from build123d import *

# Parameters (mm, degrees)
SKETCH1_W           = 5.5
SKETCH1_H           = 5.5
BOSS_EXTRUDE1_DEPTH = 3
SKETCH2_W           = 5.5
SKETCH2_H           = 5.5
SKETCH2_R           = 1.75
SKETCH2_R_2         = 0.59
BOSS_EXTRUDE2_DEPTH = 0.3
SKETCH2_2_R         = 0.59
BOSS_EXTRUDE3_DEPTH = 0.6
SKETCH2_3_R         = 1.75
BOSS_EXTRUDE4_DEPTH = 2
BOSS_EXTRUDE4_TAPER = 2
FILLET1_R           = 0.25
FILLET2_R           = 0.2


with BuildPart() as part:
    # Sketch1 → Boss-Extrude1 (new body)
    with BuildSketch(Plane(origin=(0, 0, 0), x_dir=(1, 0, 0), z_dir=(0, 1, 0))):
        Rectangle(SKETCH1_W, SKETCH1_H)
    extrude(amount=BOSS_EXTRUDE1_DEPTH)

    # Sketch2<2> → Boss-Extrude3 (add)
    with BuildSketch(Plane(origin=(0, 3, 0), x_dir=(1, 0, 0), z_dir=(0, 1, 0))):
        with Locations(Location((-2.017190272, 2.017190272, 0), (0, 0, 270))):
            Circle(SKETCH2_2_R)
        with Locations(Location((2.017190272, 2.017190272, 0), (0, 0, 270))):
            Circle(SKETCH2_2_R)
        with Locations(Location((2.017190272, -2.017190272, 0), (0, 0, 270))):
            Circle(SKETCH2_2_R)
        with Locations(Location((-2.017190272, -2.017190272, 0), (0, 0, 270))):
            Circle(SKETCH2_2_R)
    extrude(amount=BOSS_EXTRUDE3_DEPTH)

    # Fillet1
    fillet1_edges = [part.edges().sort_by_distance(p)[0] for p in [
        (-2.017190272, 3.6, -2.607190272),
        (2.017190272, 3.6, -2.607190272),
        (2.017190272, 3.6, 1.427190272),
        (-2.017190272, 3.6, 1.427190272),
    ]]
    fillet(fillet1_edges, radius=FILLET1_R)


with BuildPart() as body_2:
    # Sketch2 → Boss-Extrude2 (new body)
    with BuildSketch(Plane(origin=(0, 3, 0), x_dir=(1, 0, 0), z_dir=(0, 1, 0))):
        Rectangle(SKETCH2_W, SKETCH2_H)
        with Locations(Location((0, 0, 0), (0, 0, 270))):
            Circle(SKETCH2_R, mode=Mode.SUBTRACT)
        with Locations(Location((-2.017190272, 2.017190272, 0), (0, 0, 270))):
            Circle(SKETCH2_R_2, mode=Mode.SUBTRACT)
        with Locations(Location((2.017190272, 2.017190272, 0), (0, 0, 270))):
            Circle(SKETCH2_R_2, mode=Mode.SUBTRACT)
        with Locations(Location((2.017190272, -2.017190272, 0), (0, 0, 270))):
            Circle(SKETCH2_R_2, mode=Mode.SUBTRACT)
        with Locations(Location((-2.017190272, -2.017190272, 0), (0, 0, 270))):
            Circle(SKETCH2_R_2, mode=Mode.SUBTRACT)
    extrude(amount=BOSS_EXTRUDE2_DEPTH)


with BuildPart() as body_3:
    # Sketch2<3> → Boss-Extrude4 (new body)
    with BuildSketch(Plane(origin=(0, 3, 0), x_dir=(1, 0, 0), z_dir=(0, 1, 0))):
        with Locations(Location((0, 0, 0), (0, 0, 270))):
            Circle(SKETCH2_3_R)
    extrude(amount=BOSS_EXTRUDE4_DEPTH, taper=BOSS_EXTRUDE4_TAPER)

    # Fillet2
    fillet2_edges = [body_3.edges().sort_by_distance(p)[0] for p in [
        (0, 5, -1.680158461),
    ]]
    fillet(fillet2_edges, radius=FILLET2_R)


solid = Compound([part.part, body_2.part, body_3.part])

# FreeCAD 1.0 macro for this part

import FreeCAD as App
import Part
import Sketcher

V = App.Vector


def edges_at(feature, points):
    """Names of the edges that pass closest to the given points."""
    edges = feature.Shape.Edges
    near = lambda p: min(range(len(edges)), key=lambda i: edges[i].distToShape(Part.Vertex(*p))[0])
    return sorted({f"Edge{near(p) + 1}" for p in points})


def add_polygon(sketch, points):
    """Adds a closed chain of lines whose ends are joined by coincident constraints."""
    first, n = sketch.GeometryCount, len(points)
    for a, b in zip(points, points[1:] + points[:1]):
        sketch.addGeometry(Part.LineSegment(App.Vector(*a, 0), App.Vector(*b, 0)), False)
    for i in range(n):
        sketch.addConstraint(Sketcher.Constraint("Coincident", first + i, 2, first + (i + 1) % n, 1))

doc = App.newDocument("Part")
body = doc.addObject("PartDesign::Body", "Body")

sketch1 = doc.addObject("Sketcher::SketchObject", "Sketch")
body.addObject(sketch1)
sketch1.AttachmentSupport = (doc.XZ_Plane, [""])
sketch1.MapMode = "FlatFace"
add_polygon(sketch1, [(-2.75, -2.75), (-2.75, 2.75), (2.75, 2.75), (2.75, -2.75)])
sketch1.addConstraint(Sketcher.Constraint("Vertical", 0))
sketch1.addConstraint(Sketcher.Constraint("Horizontal", 1))
sketch1.addConstraint(Sketcher.Constraint("Vertical", 2))
sketch1.addConstraint(Sketcher.Constraint("Horizontal", 3))
sketch1.addConstraint(Sketcher.Constraint("Symmetric", 0, 2, 2, 2, -1, 1))
sketch1.addConstraint(Sketcher.Constraint("Equal", 3, 0))
sketch1.addConstraint(Sketcher.Constraint("DistanceX", 1, 1, 1, 2, 5.5))
pad1 = doc.addObject("PartDesign::Pad", "Pad")
body.addObject(pad1)
pad1.Profile = sketch1
pad1.Length = 3
pad1.Reversed = True

sketch2 = doc.addObject("Sketcher::SketchObject", "Sketch001")
body.addObject(sketch2)
sketch2.AttachmentSupport = (doc.XZ_Plane, [""])
sketch2.MapMode = "FlatFace"
sketch2.AttachmentOffset = App.Placement(V(0, 0, -3), App.Rotation())
sketch2.addGeometry(Part.Circle(V(-2.01719, -2.01719, 0), V(0, 0, 1), 0.59), False)
sketch2.addGeometry(Part.Circle(V(2.01719, -2.01719, 0), V(0, 0, 1), 0.59), False)
sketch2.addGeometry(Part.Circle(V(2.01719, 2.01719, 0), V(0, 0, 1), 0.59), False)
sketch2.addGeometry(Part.Circle(V(-2.01719, 2.01719, 0), V(0, 0, 1), 0.59), False)
sketch2.addConstraint(Sketcher.Constraint("Equal", 0, 1))
sketch2.addConstraint(Sketcher.Constraint("Equal", 1, 2))
sketch2.addConstraint(Sketcher.Constraint("Equal", 2, 3))
sketch2.addConstraint(Sketcher.Constraint("Symmetric", 0, 3, 2, 3, -1, 1))
sketch2.addConstraint(Sketcher.Constraint("Symmetric", 1, 3, 3, 3, -1, 1))
sketch2.addConstraint(Sketcher.Constraint("Symmetric", 0, 3, 1, 3, -2))
sketch2.addConstraint(Sketcher.Constraint("Diameter", 0, 1.18))
sketch2.addConstraint(Sketcher.Constraint("DistanceX", 0, 3, -1, 1, 2.01719))
sketch2.addConstraint(Sketcher.Constraint("DistanceY", 0, 3, -1, 1, 2.01719))
pad2 = doc.addObject("PartDesign::Pad", "Pad001")
body.addObject(pad2)
pad2.Profile = sketch2
pad2.Length = 0.6
pad2.Reversed = True
doc.recompute()

fillet = doc.addObject("PartDesign::Fillet", "Fillet")
body.addObject(fillet)
fillet.Base = (pad2, edges_at(pad2, [
    (-2.017, 3.6, -2.607),
    (2.017, 3.6, -2.607),
    (2.017, 3.6, 1.427),
    (-2.017, 3.6, 1.427),
]))
fillet.Radius = 0.25
body2 = doc.addObject("PartDesign::Body", "Body001")

sketch3 = doc.addObject("Sketcher::SketchObject", "Sketch002")
body2.addObject(sketch3)
sketch3.AttachmentSupport = (doc.getObject("XZ_Plane001"), [""])
sketch3.MapMode = "FlatFace"
sketch3.AttachmentOffset = App.Placement(V(0, 0, -3), App.Rotation())
add_polygon(sketch3, [(-2.75, -2.75), (-2.75, 2.75), (2.75, 2.75), (2.75, -2.75)])
sketch3.addGeometry(Part.Circle(V(-2.01719, 2.01719, 0), V(0, 0, 1), 0.59), False)
sketch3.addGeometry(Part.Circle(V(2.01719, 2.01719, 0), V(0, 0, 1), 0.59), False)
sketch3.addGeometry(Part.Circle(V(-2.01719, -2.01719, 0), V(0, 0, 1), 0.59), False)
sketch3.addGeometry(Part.Circle(V(0, 0, 0), V(0, 0, 1), 1.75), False)
sketch3.addGeometry(Part.Circle(V(2.01719, -2.01719, 0), V(0, 0, 1), 0.59), False)
sketch3.addConstraint(Sketcher.Constraint("Vertical", 0))
sketch3.addConstraint(Sketcher.Constraint("Horizontal", 1))
sketch3.addConstraint(Sketcher.Constraint("Vertical", 2))
sketch3.addConstraint(Sketcher.Constraint("Horizontal", 3))
sketch3.addConstraint(Sketcher.Constraint("Coincident", 7, 3, -1, 1))
sketch3.addConstraint(Sketcher.Constraint("Equal", 4, 5))
sketch3.addConstraint(Sketcher.Constraint("Equal", 5, 6))
sketch3.addConstraint(Sketcher.Constraint("Equal", 6, 8))
sketch3.addConstraint(Sketcher.Constraint("Symmetric", 5, 3, 6, 3, -1, 1))
sketch3.addConstraint(Sketcher.Constraint("Symmetric", 4, 3, 8, 3, -1, 1))
sketch3.addConstraint(Sketcher.Constraint("Symmetric", 0, 2, 2, 2, -1, 1))
sketch3.addConstraint(Sketcher.Constraint("Symmetric", 4, 3, 5, 3, -2))
sketch3.addConstraint(Sketcher.Constraint("Equal", 3, 0))
sketch3.addConstraint(Sketcher.Constraint("Diameter", 7, 3.5))
sketch3.addConstraint(Sketcher.Constraint("Diameter", 4, 1.18))
sketch3.addConstraint(Sketcher.Constraint("DistanceX", 1, 1, 1, 2, 5.5))
sketch3.addConstraint(Sketcher.Constraint("DistanceX", 4, 3, -1, 1, 2.01719))
sketch3.addConstraint(Sketcher.Constraint("DistanceY", -1, 1, 4, 3, 2.01719))
pad3 = doc.addObject("PartDesign::Pad", "Pad002")
body2.addObject(pad3)
pad3.Profile = sketch3
pad3.Length = 0.3
pad3.Reversed = True
body3 = doc.addObject("PartDesign::Body", "Body002")

sketch4 = doc.addObject("Sketcher::SketchObject", "Sketch003")
body3.addObject(sketch4)
sketch4.AttachmentSupport = (doc.getObject("XZ_Plane002"), [""])
sketch4.MapMode = "FlatFace"
sketch4.AttachmentOffset = App.Placement(V(0, 0, -3), App.Rotation())
sketch4.addGeometry(Part.Circle(V(0, 0, 0), V(0, 0, 1), 1.75), False)
sketch4.addConstraint(Sketcher.Constraint("Coincident", 0, 3, -1, 1))
sketch4.addConstraint(Sketcher.Constraint("Diameter", 0, 3.5))
pad4 = doc.addObject("PartDesign::Pad", "Pad003")
body3.addObject(pad4)
pad4.Profile = sketch4
pad4.Length = 2
pad4.Reversed = True
pad4.TaperAngle = -2
doc.recompute()

fillet2 = doc.addObject("PartDesign::Fillet", "Fillet001")
body3.addObject(fillet2)
fillet2.Base = (pad4, edges_at(pad4, [(0, 5, -1.68)]))
fillet2.Radius = 0.2

doc.recompute()
